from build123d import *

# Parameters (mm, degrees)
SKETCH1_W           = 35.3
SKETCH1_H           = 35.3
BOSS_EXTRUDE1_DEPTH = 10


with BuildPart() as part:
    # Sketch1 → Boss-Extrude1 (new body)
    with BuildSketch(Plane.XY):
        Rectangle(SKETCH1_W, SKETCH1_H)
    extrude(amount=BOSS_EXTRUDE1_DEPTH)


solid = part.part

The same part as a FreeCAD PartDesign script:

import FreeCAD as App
import Part
import Sketcher

V = App.Vector
Q = App.Units.Quantity

doc = App.newDocument("Part")
body = doc.addObject("PartDesign::Body", "Body")

sketch1 = doc.addObject("Sketcher::SketchObject", "Sketch")
body.addObject(sketch1)
sketch1.AttachmentSupport = (doc.XY_Plane, [""])
sketch1.MapMode = "FlatFace"
sketch1.addGeometry([
    Part.LineSegment(V(-17.65, 17.65, 0), V(-17.65, -17.65, 0)),
    Part.LineSegment(V(-17.65, -17.65, 0), V(17.65, -17.65, 0)),
    Part.LineSegment(V(17.65, -17.65, 0), V(17.65, 17.65, 0)),
    Part.LineSegment(V(17.65, 17.65, 0), V(-17.65, 17.65, 0)),
], False)
sketch1.addConstraint([
    Sketcher.Constraint("Coincident", 0, 2, 1, 1),
    Sketcher.Constraint("Coincident", 1, 2, 2, 1),
    Sketcher.Constraint("Coincident", 2, 2, 3, 1),
    Sketcher.Constraint("Coincident", 3, 2, 0, 1),
    Sketcher.Constraint("Vertical", 0),
    Sketcher.Constraint("Horizontal", 1),
    Sketcher.Constraint("Vertical", 2),
    Sketcher.Constraint("Horizontal", 3),
    Sketcher.Constraint("Symmetric", 0, 2, 2, 2, -1, 1),
    Sketcher.Constraint("Equal", 3, 0),
    Sketcher.Constraint("DistanceX", 1, 1, 1, 2, Q("35.3 mm")),
])
pad1 = doc.addObject("PartDesign::Pad", "Pad")
body.addObject(pad1)
pad1.Profile = sketch1
pad1.Length = 10

doc.recompute()
